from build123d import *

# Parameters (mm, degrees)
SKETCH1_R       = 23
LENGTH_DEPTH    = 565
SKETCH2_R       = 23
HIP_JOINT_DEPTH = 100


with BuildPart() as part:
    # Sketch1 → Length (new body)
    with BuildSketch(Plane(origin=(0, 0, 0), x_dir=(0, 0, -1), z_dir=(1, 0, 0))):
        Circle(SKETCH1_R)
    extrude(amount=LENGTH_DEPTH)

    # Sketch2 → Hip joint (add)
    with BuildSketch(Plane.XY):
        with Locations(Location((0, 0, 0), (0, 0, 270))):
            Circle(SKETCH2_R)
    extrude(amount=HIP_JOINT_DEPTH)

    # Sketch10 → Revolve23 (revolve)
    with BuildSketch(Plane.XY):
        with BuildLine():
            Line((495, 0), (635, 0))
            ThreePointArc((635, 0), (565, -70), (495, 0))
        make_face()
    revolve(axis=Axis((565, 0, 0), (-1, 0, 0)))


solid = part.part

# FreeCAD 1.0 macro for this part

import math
import FreeCAD as App
import Part
import Sketcher
from FreeCAD import Vector

doc = App.newDocument("Part")
body = doc.addObject("PartDesign::Body", "Body")

sketch1 = body.newObject("Sketcher::SketchObject", "Sketch")
sketch1.AttachmentSupport = (doc.getObject("YZ_Plane"), [""])
sketch1.MapMode = "FlatFace"
sketch1.addGeometry(Part.Circle(Vector(0, 0, 0), Vector(0, 0, 1), 23), False)
sketch1.addConstraint(Sketcher.Constraint("Coincident", 0, 3, -1, 1))
sketch1.addConstraint(Sketcher.Constraint("Diameter", 0, 46.0))
pad1 = body.newObject("PartDesign::Pad", "Pad")
pad1.Profile = sketch1
pad1.Length = 565

sketch2 = body.newObject("Sketcher::SketchObject", "Sketch001")
sketch2.AttachmentSupport = (doc.getObject("XY_Plane"), [""])
sketch2.MapMode = "FlatFace"
sketch2.addGeometry(Part.Circle(Vector(0, 0, 0), Vector(0, 0, 1), 23), False)
sketch2.addConstraint(Sketcher.Constraint("Coincident", 0, 3, -1, 1))
sketch2.addConstraint(Sketcher.Constraint("Diameter", 0, 46.0))
pad2 = body.newObject("PartDesign::Pad", "Pad001")
pad2.Profile = sketch2
pad2.Length = 100

sketch3 = body.newObject("Sketcher::SketchObject", "Sketch002")
sketch3.AttachmentSupport = (doc.getObject("XY_Plane"), [""])
sketch3.MapMode = "FlatFace"
sketch3.addGeometry(Part.LineSegment(Vector(635, 0, 0), Vector(495, 0, 0)), False)
sketch3.addGeometry(Part.ArcOfCircle(Part.Circle(Vector(565, 0, 0), Vector(0, 0, 1), 70), math.radians(180), math.radians(360)), False)
sketch3.addConstraint(Sketcher.Constraint("Coincident", 0, 1, 1, 2))
sketch3.addConstraint(Sketcher.Constraint("Coincident", 1, 1, 0, 2))
sketch3.addConstraint(Sketcher.Constraint("Horizontal", 0))
sketch3.addConstraint(Sketcher.Constraint("PointOnObject", 1, 3, -1))
sketch3.addConstraint(Sketcher.Constraint("PointOnObject", 0, 1, -1))
sketch3.addConstraint(Sketcher.Constraint("Radius", 1, 70.0))
sketch3.addConstraint(Sketcher.Constraint("DistanceX", -1, 1, 1, 3, 565.0))
revolution = body.newObject("PartDesign::Revolution", "Revolution")
revolution.Profile = sketch3
revolution.ReferenceAxis = (sketch3, ["H_Axis"])
revolution.Angle = 360

doc.recompute()
